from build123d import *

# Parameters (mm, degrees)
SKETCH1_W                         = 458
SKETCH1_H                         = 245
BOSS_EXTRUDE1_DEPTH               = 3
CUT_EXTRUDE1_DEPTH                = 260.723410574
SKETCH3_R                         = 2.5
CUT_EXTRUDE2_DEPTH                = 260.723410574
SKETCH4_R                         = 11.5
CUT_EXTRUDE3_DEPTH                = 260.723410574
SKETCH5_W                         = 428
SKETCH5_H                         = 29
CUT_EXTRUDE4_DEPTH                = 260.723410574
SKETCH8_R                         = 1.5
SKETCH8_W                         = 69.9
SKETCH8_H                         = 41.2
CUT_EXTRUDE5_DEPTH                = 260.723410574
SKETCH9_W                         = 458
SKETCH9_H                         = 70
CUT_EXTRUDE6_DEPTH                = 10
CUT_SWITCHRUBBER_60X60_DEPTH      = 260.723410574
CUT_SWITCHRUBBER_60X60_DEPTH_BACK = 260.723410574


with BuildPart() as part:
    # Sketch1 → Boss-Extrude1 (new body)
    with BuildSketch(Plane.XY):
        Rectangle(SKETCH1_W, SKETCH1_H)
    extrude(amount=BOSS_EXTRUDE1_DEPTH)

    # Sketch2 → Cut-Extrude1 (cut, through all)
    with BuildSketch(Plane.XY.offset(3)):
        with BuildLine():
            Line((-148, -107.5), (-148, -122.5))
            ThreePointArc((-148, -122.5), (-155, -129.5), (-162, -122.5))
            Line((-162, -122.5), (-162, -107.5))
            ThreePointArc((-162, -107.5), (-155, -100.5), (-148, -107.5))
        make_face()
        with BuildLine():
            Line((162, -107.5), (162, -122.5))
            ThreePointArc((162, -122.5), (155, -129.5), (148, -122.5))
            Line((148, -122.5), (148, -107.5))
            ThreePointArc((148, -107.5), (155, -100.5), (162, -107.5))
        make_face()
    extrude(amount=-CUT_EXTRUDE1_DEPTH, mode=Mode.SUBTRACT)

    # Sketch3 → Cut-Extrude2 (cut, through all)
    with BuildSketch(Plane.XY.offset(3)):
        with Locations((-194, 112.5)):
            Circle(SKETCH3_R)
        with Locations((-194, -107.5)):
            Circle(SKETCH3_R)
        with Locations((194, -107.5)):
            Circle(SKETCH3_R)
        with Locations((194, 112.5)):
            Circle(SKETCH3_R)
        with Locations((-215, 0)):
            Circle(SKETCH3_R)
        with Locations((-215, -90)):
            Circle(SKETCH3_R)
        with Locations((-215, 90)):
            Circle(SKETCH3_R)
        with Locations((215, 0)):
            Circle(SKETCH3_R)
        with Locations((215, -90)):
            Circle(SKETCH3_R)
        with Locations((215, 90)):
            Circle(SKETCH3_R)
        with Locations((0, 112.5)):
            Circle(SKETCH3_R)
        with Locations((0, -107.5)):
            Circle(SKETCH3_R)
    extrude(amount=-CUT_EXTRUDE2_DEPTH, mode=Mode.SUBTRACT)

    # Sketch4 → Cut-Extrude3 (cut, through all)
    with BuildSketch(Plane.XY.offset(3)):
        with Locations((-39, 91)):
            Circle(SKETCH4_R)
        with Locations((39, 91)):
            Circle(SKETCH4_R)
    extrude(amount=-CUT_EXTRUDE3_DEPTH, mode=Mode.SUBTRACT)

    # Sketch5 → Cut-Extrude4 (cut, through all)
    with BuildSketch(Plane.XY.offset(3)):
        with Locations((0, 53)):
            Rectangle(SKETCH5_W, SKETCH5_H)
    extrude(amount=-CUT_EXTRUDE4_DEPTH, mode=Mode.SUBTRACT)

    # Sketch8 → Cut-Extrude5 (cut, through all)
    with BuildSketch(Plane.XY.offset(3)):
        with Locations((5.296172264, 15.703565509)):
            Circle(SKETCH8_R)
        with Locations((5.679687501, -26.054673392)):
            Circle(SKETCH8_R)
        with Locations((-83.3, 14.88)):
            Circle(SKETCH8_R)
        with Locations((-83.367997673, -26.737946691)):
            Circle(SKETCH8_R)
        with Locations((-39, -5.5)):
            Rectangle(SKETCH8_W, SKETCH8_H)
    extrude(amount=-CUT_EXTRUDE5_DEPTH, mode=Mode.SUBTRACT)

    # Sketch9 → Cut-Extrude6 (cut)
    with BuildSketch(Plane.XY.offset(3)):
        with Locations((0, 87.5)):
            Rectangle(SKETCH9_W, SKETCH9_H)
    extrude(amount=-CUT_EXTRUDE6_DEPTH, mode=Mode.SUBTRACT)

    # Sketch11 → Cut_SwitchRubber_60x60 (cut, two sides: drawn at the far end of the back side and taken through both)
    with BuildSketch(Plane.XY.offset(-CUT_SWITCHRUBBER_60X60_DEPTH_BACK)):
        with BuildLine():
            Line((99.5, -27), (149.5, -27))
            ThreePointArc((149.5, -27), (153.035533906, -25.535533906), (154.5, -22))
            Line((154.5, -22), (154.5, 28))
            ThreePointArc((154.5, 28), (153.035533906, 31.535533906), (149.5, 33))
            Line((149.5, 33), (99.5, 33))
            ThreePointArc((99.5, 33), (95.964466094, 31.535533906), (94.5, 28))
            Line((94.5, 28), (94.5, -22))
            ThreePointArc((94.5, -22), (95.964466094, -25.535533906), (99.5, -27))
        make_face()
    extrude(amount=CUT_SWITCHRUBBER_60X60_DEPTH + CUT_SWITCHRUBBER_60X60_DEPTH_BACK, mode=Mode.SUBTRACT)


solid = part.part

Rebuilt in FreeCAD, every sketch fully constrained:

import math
import FreeCAD as App
import Part
import Sketcher

V = App.Vector
Q = App.Units.Quantity

doc = App.newDocument("Part")
body = doc.addObject("PartDesign::Body", "Body")

# Sketch on XY plane
sketch1 = body.newObject("Sketcher::SketchObject", "Sketch")
sketch1.AttachmentSupport = (doc.getObject("XY_Plane"), [""])
sketch1.MapMode = "FlatFace"
sketch1.addGeometry(Part.LineSegment(V(-229, 122, 0), V(-229, -122, 0)), False)
sketch1.addGeometry(Part.LineSegment(V(-229, -122, 0), V(229, -122, 0)), False)
sketch1.addGeometry(Part.LineSegment(V(229, -122, 0), V(229, 122, 0)), False)
sketch1.addGeometry(Part.LineSegment(V(229, 122, 0), V(-229, 122, 0)), False)
sketch1.addConstraint(Sketcher.Constraint("Coincident", 0, 2, 1, 1))
sketch1.addConstraint(Sketcher.Constraint("Coincident", 1, 2, 2, 1))
sketch1.addConstraint(Sketcher.Constraint("Coincident", 2, 2, 3, 1))
sketch1.addConstraint(Sketcher.Constraint("Coincident", 3, 2, 0, 1))
sketch1.addConstraint(Sketcher.Constraint("Vertical", 0))
sketch1.addConstraint(Sketcher.Constraint("Horizontal", 1))
sketch1.addConstraint(Sketcher.Constraint("Vertical", 2))
sketch1.addConstraint(Sketcher.Constraint("Horizontal", 3))
sketch1.addConstraint(Sketcher.Constraint("Symmetric", 0, 2, 2, 2, -1, 1))
sketch1.addConstraint(Sketcher.Constraint("DistanceX", 1, 1, 1, 2, Q("458 mm")))
sketch1.addConstraint(Sketcher.Constraint("DistanceY", 0, 2, 0, 1, Q("245 mm")))
pad1 = body.newObject("PartDesign::Pad", "Pad")
pad1.Profile = sketch1
pad1.Length = 3

# Sketch on XY plane
sketch2 = body.newObject("Sketcher::SketchObject", "Sketch001")
sketch2.AttachmentSupport = (doc.getObject("XY_Plane"), [""])
sketch2.MapMode = "FlatFace"
sketch2.AttachmentOffset = App.Placement(V(0, 0, 3), App.Rotation())
sketch2.addGeometry(Part.LineSegment(V(-148, -122, 0), V(-148, -108, 0)), False)
sketch2.addGeometry(Part.ArcOfCircle(Part.Circle(V(-155, -108, 0), V(0, 0, 1), 7), math.radians(0), math.radians(180)), False)
sketch2.addGeometry(Part.LineSegment(V(-162, -108, 0), V(-162, -122, 0)), False)
sketch2.addGeometry(Part.ArcOfCircle(Part.Circle(V(-155, -122, 0), V(0, 0, 1), 7), math.radians(180), math.radians(360)), False)
sketch2.addGeometry(Part.LineSegment(V(162, -122, 0), V(162, -108, 0)), False)
sketch2.addGeometry(Part.ArcOfCircle(Part.Circle(V(155, -108, 0), V(0, 0, 1), 7), math.radians(0), math.radians(180)), False)
sketch2.addGeometry(Part.LineSegment(V(148, -108, 0), V(148, -122, 0)), False)
sketch2.addGeometry(Part.ArcOfCircle(Part.Circle(V(155, -122, 0), V(0, 0, 1), 7), math.radians(180), math.radians(360)), False)
sketch2.addConstraint(Sketcher.Constraint("Tangent", 0, 2, 1, 1))
sketch2.addConstraint(Sketcher.Constraint("Tangent", 1, 2, 2, 1))
sketch2.addConstraint(Sketcher.Constraint("Tangent", 2, 2, 3, 1))
sketch2.addConstraint(Sketcher.Constraint("Tangent", 3, 2, 0, 1))
sketch2.addConstraint(Sketcher.Constraint("Tangent", 4, 2, 5, 1))
sketch2.addConstraint(Sketcher.Constraint("Tangent", 5, 2, 6, 1))
sketch2.addConstraint(Sketcher.Constraint("Tangent", 6, 2, 7, 1))
sketch2.addConstraint(Sketcher.Constraint("Tangent", 7, 2, 4, 1))
sketch2.addConstraint(Sketcher.Constraint("Vertical", 0))
sketch2.addConstraint(Sketcher.Constraint("Vertical", 2))
sketch2.addConstraint(Sketcher.Constraint("Vertical", 4))
sketch2.addConstraint(Sketcher.Constraint("Vertical", 6))
sketch2.addConstraint(Sketcher.Constraint("Equal", 3, 5))
sketch2.addConstraint(Sketcher.Constraint("Symmetric", 1, 3, 5, 3, -2))
sketch2.addConstraint(Sketcher.Constraint("Horizontal", 3, 3, 7, 3))
sketch2.addConstraint(Sketcher.Constraint("Radius", 1, Q("7 mm")))
sketch2.addConstraint(Sketcher.Constraint("DistanceY", 0, 1, 0, 2, Q("15 mm")))
sketch2.addConstraint(Sketcher.Constraint("DistanceX", 1, 3, -1, 1, Q("155 mm")))
sketch2.addConstraint(Sketcher.Constraint("DistanceY", 1, 3, -1, 1, Q("107.5 mm")))
pocket1 = body.newObject("PartDesign::Pocket", "Pocket")
pocket1.Profile = sketch2
pocket1.Type = "ThroughAll"

# Sketch on XY plane
sketch3 = body.newObject("Sketcher::SketchObject", "Sketch002")
sketch3.AttachmentSupport = (doc.getObject("XY_Plane"), [""])
sketch3.MapMode = "FlatFace"
sketch3.AttachmentOffset = App.Placement(V(0, 0, 3), App.Rotation())
sketch3.addGeometry(Part.Circle(V(-194, 112.5, 0), V(0, 0, 1), 2.5), False)
sketch3.addGeometry(Part.Circle(V(-194, -107.5, 0), V(0, 0, 1), 2.5), False)
sketch3.addGeometry(Part.Circle(V(194, -107.5, 0), V(0, 0, 1), 2.5), False)
sketch3.addGeometry(Part.Circle(V(194, 112.5, 0), V(0, 0, 1), 2.5), False)
sketch3.addGeometry(Part.Circle(V(-215, 0, 0), V(0, 0, 1), 2.5), False)
sketch3.addGeometry(Part.Circle(V(-215, -90, 0), V(0, 0, 1), 2.5), False)
sketch3.addGeometry(Part.Circle(V(-215, 90, 0), V(0, 0, 1), 2.5), False)
sketch3.addGeometry(Part.Circle(V(215, 0, 0), V(0, 0, 1), 2.5), False)
sketch3.addGeometry(Part.Circle(V(215, -90, 0), V(0, 0, 1), 2.5), False)
sketch3.addGeometry(Part.Circle(V(215, 90, 0), V(0, 0, 1), 2.5), False)
sketch3.addGeometry(Part.Circle(V(0, 112.5, 0), V(0, 0, 1), 2.5), False)
sketch3.addGeometry(Part.Circle(V(0, -107.5, 0), V(0, 0, 1), 2.5), False)
sketch3.addConstraint(Sketcher.Constraint("Equal", 0, 1))
sketch3.addConstraint(Sketcher.Constraint("Equal", 1, 2))
sketch3.addConstraint(Sketcher.Constraint("Equal", 2, 3))
sketch3.addConstraint(Sketcher.Constraint("Equal", 3, 4))
sketch3.addConstraint(Sketcher.Constraint("Equal", 4, 5))
sketch3.addConstraint(Sketcher.Constraint("Equal", 5, 6))
sketch3.addConstraint(Sketcher.Constraint("Equal", 6, 7))
sketch3.addConstraint(Sketcher.Constraint("Equal", 7, 8))
sketch3.addConstraint(Sketcher.Constraint("Equal", 8, 9))
sketch3.addConstraint(Sketcher.Constraint("Equal", 9, 10))
sketch3.addConstraint(Sketcher.Constraint("Equal", 10, 11))
sketch3.addConstraint(Sketcher.Constraint("Symmetric", 4, 3, 7, 3, -1, 1))
sketch3.addConstraint(Sketcher.Constraint("Symmetric", 6, 3, 8, 3, -1, 1))
sketch3.addConstraint(Sketcher.Constraint("Symmetric", 5, 3, 9, 3, -1, 1))
sketch3.addConstraint(Sketcher.Constraint("Symmetric", 1, 3, 2, 3, -2))
sketch3.addConstraint(Sketcher.Constraint("Symmetric", 0, 3, 3, 3, -2))
sketch3.addConstraint(Sketcher.Constraint("Symmetric", 5, 3, 8, 3, -2))
sketch3.addConstraint(Sketcher.Constraint("PointOnObject", 4, 3, -1))
sketch3.addConstraint(Sketcher.Constraint("PointOnObject", 10, 3, -2))
sketch3.addConstraint(Sketcher.Constraint("PointOnObject", 11, 3, -2))
sketch3.addConstraint(Sketcher.Constraint("Horizontal", 3, 3, 10, 3))
sketch3.addConstraint(Sketcher.Constraint("Horizontal", 2, 3, 11, 3))
sketch3.addConstraint(Sketcher.Constraint("Vertical", 0, 3, 1, 3))
sketch3.addConstraint(Sketcher.Constraint("Vertical", 4, 3, 5, 3))
sketch3.addConstraint(Sketcher.Constraint("Diameter", 0, Q("5 mm")))
sketch3.addConstraint(Sketcher.Constraint("DistanceX", 0, 3, -1, 1, Q("194 mm")))
sketch3.addConstraint(Sketcher.Constraint("DistanceX", 4, 3, -1, 1, Q("215 mm")))
sketch3.addConstraint(Sketcher.Constraint("DistanceY", 5, 3, -1, 1, Q("90 mm")))
sketch3.addConstraint(Sketcher.Constraint("DistanceY", 1, 3, 0, 3, Q("220 mm")))
sketch3.addConstraint(Sketcher.Constraint("DistanceY", -1, 1, 0, 3, Q("112.5 mm")))
pocket2 = body.newObject("PartDesign::Pocket", "Pocket001")
pocket2.Profile = sketch3
pocket2.Type = "ThroughAll"

# Sketch on XY plane
sketch4 = body.newObject("Sketcher::SketchObject", "Sketch003")
sketch4.AttachmentSupport = (doc.getObject("XY_Plane"), [""])
sketch4.MapMode = "FlatFace"
sketch4.AttachmentOffset = App.Placement(V(0, 0, 3), App.Rotation())
sketch4.addGeometry(Part.Circle(V(-39, 91, 0), V(0, 0, 1), 12), False)
sketch4.addGeometry(Part.Circle(V(39, 91, 0), V(0, 0, 1), 12), False)
sketch4.addConstraint(Sketcher.Constraint("Equal", 0, 1))
sketch4.addConstraint(Sketcher.Constraint("Symmetric", 0, 3, 1, 3, -2))
sketch4.addConstraint(Sketcher.Constraint("Diameter", 0, Q("23 mm")))
sketch4.addConstraint(Sketcher.Constraint("DistanceX", 0, 3, -1, 1, Q("39 mm")))
sketch4.addConstraint(Sketcher.Constraint("DistanceY", -1, 1, 0, 3, Q("91 mm")))
pocket3 = body.newObject("PartDesign::Pocket", "Pocket002")
pocket3.Profile = sketch4
pocket3.Type = "ThroughAll"

# Sketch on XY plane
sketch5 = body.newObject("Sketcher::SketchObject", "Sketch004")
sketch5.AttachmentSupport = (doc.getObject("XY_Plane"), [""])
sketch5.MapMode = "FlatFace"
sketch5.AttachmentOffset = App.Placement(V(0, 0, 3), App.Rotation())
sketch5.addGeometry(Part.LineSegment(V(-214, 68, 0), V(-214, 38, 0)), False)
sketch5.addGeometry(Part.LineSegment(V(-214, 38, 0), V(214, 38, 0)), False)
sketch5.addGeometry(Part.LineSegment(V(214, 38, 0), V(214, 68, 0)), False)
sketch5.addGeometry(Part.LineSegment(V(214, 68, 0), V(-214, 68, 0)), False)
sketch5.addConstraint(Sketcher.Constraint("Coincident", 0, 2, 1, 1))
sketch5.addConstraint(Sketcher.Constraint("Coincident", 1, 2, 2, 1))
sketch5.addConstraint(Sketcher.Constraint("Coincident", 2, 2, 3, 1))
sketch5.addConstraint(Sketcher.Constraint("Coincident", 3, 2, 0, 1))
sketch5.addConstraint(Sketcher.Constraint("Vertical", 0))
sketch5.addConstraint(Sketcher.Constraint("Horizontal", 1))
sketch5.addConstraint(Sketcher.Constraint("Vertical", 2))
sketch5.addConstraint(Sketcher.Constraint("Horizontal", 3))
sketch5.addConstraint(Sketcher.Constraint("DistanceX", 1, 1, 1, 2, Q("428 mm")))
sketch5.addConstraint(Sketcher.Constraint("DistanceY", 0, 2, 0, 1, Q("29 mm")))
sketch5.addConstraint(Sketcher.Constraint("DistanceX", 0, 2, -1, 1, Q("214 mm")))
sketch5.addConstraint(Sketcher.Constraint("DistanceY", -1, 1, 0, 2, Q("38.5 mm")))
pocket4 = body.newObject("PartDesign::Pocket", "Pocket003")
pocket4.Profile = sketch5
pocket4.Type = "ThroughAll"

# Sketch on XY plane
sketch6 = body.newObject("Sketcher::SketchObject", "Sketch005")
sketch6.AttachmentSupport = (doc.getObject("XY_Plane"), [""])
sketch6.MapMode = "FlatFace"
sketch6.AttachmentOffset = App.Placement(V(0, 0, 3), App.Rotation())
sketch6.addGeometry(Part.Circle(V(5.3, 15.7, 0), V(0, 0, 1), 1.5), False)
sketch6.addGeometry(Part.Circle(V(5.7, -26.1, 0), V(0, 0, 1), 1.5), False)
sketch6.addGeometry(Part.Circle(V(-83.3, 14.9, 0), V(0, 0, 1), 1.5), False)
sketch6.addGeometry(Part.Circle(V(-83.4, -26.7, 0), V(0, 0, 1), 1.5), False)
sketch6.addGeometry(Part.LineSegment(V(-74, 15.1, 0), V(-74, -26.1, 0)), False)
sketch6.addGeometry(Part.LineSegment(V(-74, -26.1, 0), V(-4, -26.1, 0)), False)
sketch6.addGeometry(Part.LineSegment(V(-4, -26.1, 0), V(-4, 15.1, 0)), False)
sketch6.addGeometry(Part.LineSegment(V(-4, 15.1, 0), V(-74, 15.1, 0)), False)
sketch6.addConstraint(Sketcher.Constraint("Coincident", 4, 2, 5, 1))
sketch6.addConstraint(Sketcher.Constraint("Coincident", 5, 2, 6, 1))
sketch6.addConstraint(Sketcher.Constraint("Coincident", 6, 2, 7, 1))
sketch6.addConstraint(Sketcher.Constraint("Coincident", 7, 2, 4, 1))
sketch6.addConstraint(Sketcher.Constraint("Vertical", 4))
sketch6.addConstraint(Sketcher.Constraint("Horizontal", 5))
sketch6.addConstraint(Sketcher.Constraint("Vertical", 6))
sketch6.addConstraint(Sketcher.Constraint("Horizontal", 7))
sketch6.addConstraint(Sketcher.Constraint("Equal", 0, 1))
sketch6.addConstraint(Sketcher.Constraint("Equal", 1, 2))
sketch6.addConstraint(Sketcher.Constraint("Equal", 2, 3))
sketch6.addConstraint(Sketcher.Constraint("Diameter", 0, Q("3 mm")))
sketch6.addConstraint(Sketcher.Constraint("DistanceX", 5, 1, 5, 2, Q("69.9 mm")))
sketch6.addConstraint(Sketcher.Constraint("DistanceY", 4, 2, 4, 1, Q("41.2 mm")))
sketch6.addConstraint(Sketcher.Constraint("DistanceX", 2, 3, -1, 1, Q("83.3 mm")))
sketch6.addConstraint(Sketcher.Constraint("DistanceY", 4, 2, -1, 1, Q("26.1 mm")))
sketch6.addConstraint(Sketcher.Constraint("DistanceY", -1, 1, 2, 3, Q("14.88 mm")))
sketch6.addConstraint(Sketcher.Constraint("DistanceX", 4, 2, -1, 1, Q("73.95 mm")))
sketch6.addConstraint(Sketcher.Constraint("DistanceY", 1, 3, 0, 3, Q("41.758239 mm")))
sketch6.addConstraint(Sketcher.Constraint("DistanceX", 3, 3, 0, 3, Q("88.66417 mm")))
sketch6.addConstraint(Sketcher.Constraint("DistanceX", -1, 1, 0, 3, Q("5.296172 mm")))
sketch6.addConstraint(Sketcher.Constraint("DistanceY", -1, 1, 0, 3, Q("15.703566 mm")))
sketch6.addConstraint(Sketcher.Constraint("DistanceX", -1, 1, 1, 3, Q("5.679688 mm")))
sketch6.addConstraint(Sketcher.Constraint("DistanceY", 3, 3, -1, 1, Q("26.737947 mm")))
pocket5 = body.newObject("PartDesign::Pocket", "Pocket004")
pocket5.Profile = sketch6
pocket5.Type = "ThroughAll"

# Sketch on XY plane
sketch7 = body.newObject("Sketcher::SketchObject", "Sketch006")
sketch7.AttachmentSupport = (doc.getObject("XY_Plane"), [""])
sketch7.MapMode = "FlatFace"
sketch7.AttachmentOffset = App.Placement(V(0, 0, 3), App.Rotation())
sketch7.addGeometry(Part.LineSegment(V(-229, 122, 0), V(-229, 52, 0)), False)
sketch7.addGeometry(Part.LineSegment(V(-229, 52, 0), V(229, 52, 0)), False)
sketch7.addGeometry(Part.LineSegment(V(229, 52, 0), V(229, 122, 0)), False)
sketch7.addGeometry(Part.LineSegment(V(229, 122, 0), V(-229, 122, 0)), False)
sketch7.addConstraint(Sketcher.Constraint("Coincident", 0, 2, 1, 1))
sketch7.addConstraint(Sketcher.Constraint("Coincident", 1, 2, 2, 1))
sketch7.addConstraint(Sketcher.Constraint("Coincident", 2, 2, 3, 1))
sketch7.addConstraint(Sketcher.Constraint("Coincident", 3, 2, 0, 1))
sketch7.addConstraint(Sketcher.Constraint("Vertical", 0))
sketch7.addConstraint(Sketcher.Constraint("Horizontal", 1))
sketch7.addConstraint(Sketcher.Constraint("Vertical", 2))
sketch7.addConstraint(Sketcher.Constraint("Horizontal", 3))
sketch7.addConstraint(Sketcher.Constraint("DistanceX", 1, 1, 1, 2, Q("458 mm")))
sketch7.addConstraint(Sketcher.Constraint("DistanceY", 0, 2, 0, 1, Q("70 mm")))
sketch7.addConstraint(Sketcher.Constraint("DistanceX", 0, 2, -1, 1, Q("229 mm")))
sketch7.addConstraint(Sketcher.Constraint("DistanceY", -1, 1, 0, 2, Q("52.5 mm")))
pocket6 = body.newObject("PartDesign::Pocket", "Pocket005")
pocket6.Profile = sketch7
pocket6.Length = 10

# Sketch on XY plane
sketch8 = body.newObject("Sketcher::SketchObject", "Sketch007")
sketch8.AttachmentSupport = (doc.getObject("XY_Plane"), [""])
sketch8.MapMode = "FlatFace"
sketch8.addGeometry(Part.LineSegment(V(100, -27, 0), V(150, -27, 0)), False)
sketch8.addGeometry(Part.ArcOfCircle(Part.Circle(V(150, -22, 0), V(0, 0, 1), 5), math.radians(-90), math.radians(0)), False)
sketch8.addGeometry(Part.LineSegment(V(154, -22, 0), V(154, 28, 0)), False)
sketch8.addGeometry(Part.ArcOfCircle(Part.Circle(V(150, 28, 0), V(0, 0, 1), 5), math.radians(0), math.radians(90)), False)
sketch8.addGeometry(Part.LineSegment(V(150, 33, 0), V(100, 33, 0)), False)
sketch8.addGeometry(Part.ArcOfCircle(Part.Circle(V(100, 28, 0), V(0, 0, 1), 5), math.radians(90), math.radians(180)), False)
sketch8.addGeometry(Part.LineSegment(V(94, 28, 0), V(94, -22, 0)), False)
sketch8.addGeometry(Part.ArcOfCircle(Part.Circle(V(100, -22, 0), V(0, 0, 1), 5), math.radians(180), math.radians(270)), False)
sketch8.addConstraint(Sketcher.Constraint("Tangent", 0, 2, 1, 1))
sketch8.addConstraint(Sketcher.Constraint("Tangent", 1, 2, 2, 1))
sketch8.addConstraint(Sketcher.Constraint("Tangent", 2, 2, 3, 1))
sketch8.addConstraint(Sketcher.Constraint("Tangent", 3, 2, 4, 1))
sketch8.addConstraint(Sketcher.Constraint("Tangent", 4, 2, 5, 1))
sketch8.addConstraint(Sketcher.Constraint("Tangent", 5, 2, 6, 1))
sketch8.addConstraint(Sketcher.Constraint("Tangent", 6, 2, 7, 1))
sketch8.addConstraint(Sketcher.Constraint("Tangent", 7, 2, 0, 1))
sketch8.addConstraint(Sketcher.Constraint("Horizontal", 0))
sketch8.addConstraint(Sketcher.Constraint("Vertical", 2))
sketch8.addConstraint(Sketcher.Constraint("Horizontal", 4))
sketch8.addConstraint(Sketcher.Constraint("Vertical", 6))
sketch8.addConstraint(Sketcher.Constraint("Equal", 1, 3))
sketch8.addConstraint(Sketcher.Constraint("Equal", 3, 5))
sketch8.addConstraint(Sketcher.Constraint("Equal", 5, 7))
sketch8.addConstraint(Sketcher.Constraint("Equal", 4, 2))
sketch8.addConstraint(Sketcher.Constraint("Radius", 1, Q("5 mm")))
sketch8.addConstraint(Sketcher.Constraint("DistanceX", 0, 1, 0, 2, Q("50 mm")))
sketch8.addConstraint(Sketcher.Constraint("DistanceY", 1, 3, -1, 1, Q("22 mm")))
sketch8.addConstraint(Sketcher.Constraint("DistanceX", -1, 1, 1, 3, Q("149.5 mm")))
pocket7 = body.newObject("PartDesign::Pocket", "Pocket006")
pocket7.Profile = sketch8
pocket7.Type = "ThroughAll"
pocket7.Midplane = True

doc.recompute()
